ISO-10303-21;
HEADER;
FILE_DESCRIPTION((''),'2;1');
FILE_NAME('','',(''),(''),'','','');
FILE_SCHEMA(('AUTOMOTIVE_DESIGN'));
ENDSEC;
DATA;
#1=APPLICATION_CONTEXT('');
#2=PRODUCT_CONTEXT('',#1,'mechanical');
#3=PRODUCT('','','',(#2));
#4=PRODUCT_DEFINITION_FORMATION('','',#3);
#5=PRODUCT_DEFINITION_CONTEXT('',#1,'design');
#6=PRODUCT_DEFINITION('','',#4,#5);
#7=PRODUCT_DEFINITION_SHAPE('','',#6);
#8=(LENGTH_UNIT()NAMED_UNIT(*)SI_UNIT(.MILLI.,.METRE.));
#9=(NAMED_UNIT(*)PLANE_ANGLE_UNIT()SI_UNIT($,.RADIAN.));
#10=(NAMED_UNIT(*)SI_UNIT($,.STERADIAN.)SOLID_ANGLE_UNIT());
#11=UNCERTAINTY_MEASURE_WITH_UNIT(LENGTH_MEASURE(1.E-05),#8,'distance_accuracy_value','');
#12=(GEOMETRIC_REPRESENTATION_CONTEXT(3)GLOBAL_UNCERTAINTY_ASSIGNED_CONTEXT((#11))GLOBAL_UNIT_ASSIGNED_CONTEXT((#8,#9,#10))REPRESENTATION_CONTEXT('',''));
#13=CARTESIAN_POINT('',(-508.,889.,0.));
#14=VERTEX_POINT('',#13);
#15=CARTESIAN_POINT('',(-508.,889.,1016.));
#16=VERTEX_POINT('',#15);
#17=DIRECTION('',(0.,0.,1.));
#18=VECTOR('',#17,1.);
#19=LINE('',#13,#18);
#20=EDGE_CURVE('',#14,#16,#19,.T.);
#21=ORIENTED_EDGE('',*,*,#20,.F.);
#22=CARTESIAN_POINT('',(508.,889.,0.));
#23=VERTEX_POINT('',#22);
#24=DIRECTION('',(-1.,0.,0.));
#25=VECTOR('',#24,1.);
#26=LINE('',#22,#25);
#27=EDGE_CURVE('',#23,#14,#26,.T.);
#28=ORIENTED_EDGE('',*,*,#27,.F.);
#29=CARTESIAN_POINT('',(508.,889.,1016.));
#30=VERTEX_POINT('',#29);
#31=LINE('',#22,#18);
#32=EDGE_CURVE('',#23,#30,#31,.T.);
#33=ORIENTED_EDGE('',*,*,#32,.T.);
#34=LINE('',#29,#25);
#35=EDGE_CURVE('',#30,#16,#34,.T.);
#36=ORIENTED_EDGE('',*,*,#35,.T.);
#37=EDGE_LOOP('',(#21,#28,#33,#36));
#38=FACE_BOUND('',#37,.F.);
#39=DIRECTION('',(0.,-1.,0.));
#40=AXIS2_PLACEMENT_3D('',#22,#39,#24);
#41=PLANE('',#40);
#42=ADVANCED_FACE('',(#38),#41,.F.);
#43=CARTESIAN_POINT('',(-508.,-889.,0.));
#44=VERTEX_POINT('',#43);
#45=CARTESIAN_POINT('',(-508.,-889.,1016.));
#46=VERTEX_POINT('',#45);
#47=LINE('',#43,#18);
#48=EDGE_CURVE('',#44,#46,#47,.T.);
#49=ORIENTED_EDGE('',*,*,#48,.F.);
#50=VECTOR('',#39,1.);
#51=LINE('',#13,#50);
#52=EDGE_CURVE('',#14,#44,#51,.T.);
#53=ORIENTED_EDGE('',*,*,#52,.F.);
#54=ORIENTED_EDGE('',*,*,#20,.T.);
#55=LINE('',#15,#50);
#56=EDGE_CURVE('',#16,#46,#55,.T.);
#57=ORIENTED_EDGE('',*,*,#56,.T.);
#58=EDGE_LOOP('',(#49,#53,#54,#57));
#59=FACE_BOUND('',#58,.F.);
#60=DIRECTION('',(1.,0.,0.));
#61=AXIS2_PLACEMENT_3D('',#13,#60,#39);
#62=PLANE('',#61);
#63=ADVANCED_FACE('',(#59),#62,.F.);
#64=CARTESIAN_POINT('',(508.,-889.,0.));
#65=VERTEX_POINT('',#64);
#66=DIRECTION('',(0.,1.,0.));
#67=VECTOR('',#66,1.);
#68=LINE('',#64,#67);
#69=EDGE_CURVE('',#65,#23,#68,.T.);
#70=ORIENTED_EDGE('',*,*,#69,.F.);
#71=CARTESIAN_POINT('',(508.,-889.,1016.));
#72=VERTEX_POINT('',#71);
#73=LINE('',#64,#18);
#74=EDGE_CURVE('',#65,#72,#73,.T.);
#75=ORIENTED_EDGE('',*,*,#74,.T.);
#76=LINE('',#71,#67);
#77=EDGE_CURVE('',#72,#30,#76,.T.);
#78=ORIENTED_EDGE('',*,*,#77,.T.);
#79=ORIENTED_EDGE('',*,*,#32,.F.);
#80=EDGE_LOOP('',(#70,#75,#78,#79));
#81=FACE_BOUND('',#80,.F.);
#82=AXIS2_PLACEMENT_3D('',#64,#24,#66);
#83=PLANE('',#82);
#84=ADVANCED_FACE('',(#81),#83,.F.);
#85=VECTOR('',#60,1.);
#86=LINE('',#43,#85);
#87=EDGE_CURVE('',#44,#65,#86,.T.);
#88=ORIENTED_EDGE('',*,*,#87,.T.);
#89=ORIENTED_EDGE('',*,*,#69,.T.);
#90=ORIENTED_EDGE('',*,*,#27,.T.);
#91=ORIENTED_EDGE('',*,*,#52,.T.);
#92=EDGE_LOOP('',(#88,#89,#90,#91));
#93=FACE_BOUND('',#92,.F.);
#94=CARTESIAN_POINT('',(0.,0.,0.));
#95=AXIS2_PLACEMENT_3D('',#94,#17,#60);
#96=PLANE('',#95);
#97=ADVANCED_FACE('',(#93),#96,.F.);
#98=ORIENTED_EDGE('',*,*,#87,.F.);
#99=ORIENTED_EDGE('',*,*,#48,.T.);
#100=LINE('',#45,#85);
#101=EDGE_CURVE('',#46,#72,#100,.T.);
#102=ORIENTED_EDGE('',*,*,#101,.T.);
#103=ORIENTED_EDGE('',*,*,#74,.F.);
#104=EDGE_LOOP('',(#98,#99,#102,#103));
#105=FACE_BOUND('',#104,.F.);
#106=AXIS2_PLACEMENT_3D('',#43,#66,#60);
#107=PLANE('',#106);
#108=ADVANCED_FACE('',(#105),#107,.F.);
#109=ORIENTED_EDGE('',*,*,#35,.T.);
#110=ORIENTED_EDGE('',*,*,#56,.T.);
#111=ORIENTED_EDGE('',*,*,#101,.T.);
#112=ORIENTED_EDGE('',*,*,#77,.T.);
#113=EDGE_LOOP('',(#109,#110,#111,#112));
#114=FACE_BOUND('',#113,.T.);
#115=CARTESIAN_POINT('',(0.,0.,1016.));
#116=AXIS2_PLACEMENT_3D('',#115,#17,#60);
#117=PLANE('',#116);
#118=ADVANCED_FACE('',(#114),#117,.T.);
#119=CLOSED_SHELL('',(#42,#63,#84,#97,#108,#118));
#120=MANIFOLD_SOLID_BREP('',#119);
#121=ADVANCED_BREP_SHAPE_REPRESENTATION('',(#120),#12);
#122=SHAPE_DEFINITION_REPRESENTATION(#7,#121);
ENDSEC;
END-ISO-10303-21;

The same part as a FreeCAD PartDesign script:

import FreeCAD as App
import Part
import Sketcher

V = App.Vector
Q = App.Units.Quantity

doc = App.newDocument("Part")
body = doc.addObject("PartDesign::Body", "Body")

# Sketch on XY plane
sketch1 = body.newObject("Sketcher::SketchObject", "Sketch")
sketch1.AttachmentSupport = (doc.getObject("XY_Plane"), [""])
sketch1.MapMode = "FlatFace"
sketch1.addGeometry([
    Part.LineSegment(V(508, -889, 0), V(508, 889, 0)),
    Part.LineSegment(V(508, 889, 0), V(-508, 889, 0)),
    Part.LineSegment(V(-508, 889, 0), V(-508, -889, 0)),
    Part.LineSegment(V(-508, -889, 0), V(508, -889, 0)),
], False)
sketch1.addConstraint([
    Sketcher.Constraint("Coincident", 0, 2, 1, 1),
    Sketcher.Constraint("Coincident", 1, 2, 2, 1),
    Sketcher.Constraint("Coincident", 2, 2, 3, 1),
    Sketcher.Constraint("Coincident", 3, 2, 0, 1),
    Sketcher.Constraint("Vertical", 0),
    Sketcher.Constraint("Horizontal", 1),
    Sketcher.Constraint("Vertical", 2),
    Sketcher.Constraint("Horizontal", 3),
    Sketcher.Constraint("Symmetric", 0, 2, 2, 2, -1, 1),
    Sketcher.Constraint("DistanceX", 1, 2, 1, 1, Q("40 in")),
    Sketcher.Constraint("DistanceY", 0, 1, 0, 2, Q("70 in")),
])
pad1 = body.newObject("PartDesign::Pad", "Pad")
pad1.Profile = sketch1
pad1.Length = Q("40 in")

doc.recompute()
